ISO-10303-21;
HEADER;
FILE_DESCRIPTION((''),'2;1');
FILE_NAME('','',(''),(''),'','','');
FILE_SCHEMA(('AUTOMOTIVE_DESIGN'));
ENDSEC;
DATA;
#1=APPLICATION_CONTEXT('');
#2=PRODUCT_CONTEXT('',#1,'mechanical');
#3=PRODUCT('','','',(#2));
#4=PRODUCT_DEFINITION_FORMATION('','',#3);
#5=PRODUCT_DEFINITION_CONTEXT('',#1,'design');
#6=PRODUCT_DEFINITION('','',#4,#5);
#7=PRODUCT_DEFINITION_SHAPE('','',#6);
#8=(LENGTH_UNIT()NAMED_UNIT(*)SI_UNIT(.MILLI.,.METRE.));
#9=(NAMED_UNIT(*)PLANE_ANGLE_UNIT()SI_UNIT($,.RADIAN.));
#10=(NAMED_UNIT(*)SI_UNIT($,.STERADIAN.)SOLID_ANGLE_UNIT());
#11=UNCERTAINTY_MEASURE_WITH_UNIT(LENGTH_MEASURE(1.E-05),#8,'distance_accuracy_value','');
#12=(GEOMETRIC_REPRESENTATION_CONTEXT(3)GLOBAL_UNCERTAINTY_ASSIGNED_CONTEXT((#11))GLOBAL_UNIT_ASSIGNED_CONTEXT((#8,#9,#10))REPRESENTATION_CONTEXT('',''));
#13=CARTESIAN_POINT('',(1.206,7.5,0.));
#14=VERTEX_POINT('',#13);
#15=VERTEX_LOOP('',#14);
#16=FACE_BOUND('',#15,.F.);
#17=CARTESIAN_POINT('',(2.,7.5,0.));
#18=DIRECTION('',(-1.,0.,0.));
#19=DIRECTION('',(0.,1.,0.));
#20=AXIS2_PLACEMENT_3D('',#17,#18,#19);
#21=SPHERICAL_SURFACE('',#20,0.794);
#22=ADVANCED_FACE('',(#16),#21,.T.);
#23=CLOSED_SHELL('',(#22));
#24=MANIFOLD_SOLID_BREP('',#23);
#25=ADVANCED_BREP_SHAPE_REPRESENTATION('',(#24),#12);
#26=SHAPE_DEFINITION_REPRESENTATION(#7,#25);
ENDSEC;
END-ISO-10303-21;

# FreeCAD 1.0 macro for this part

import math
import FreeCAD as App
import Part
import Sketcher
from FreeCAD import Vector
Q = App.Units.Quantity

doc = App.newDocument("Part")
body = doc.addObject("PartDesign::Body", "Body")

# Sketch on XY plane
sketch1 = body.newObject("Sketcher::SketchObject", "Sketch")
sketch1.AttachmentSupport = (doc.getObject("XY_Plane"), [""])
sketch1.MapMode = "FlatFace"
sketch1.addGeometry([
    Part.LineSegment(Vector(1.2, 7.5, 0), Vector(2.8, 7.5, 0)),
    Part.ArcOfCircle(Part.Circle(Vector(2, 7.5, 0), Vector(0, 0, 1), 0.8), math.radians(0), math.radians(180)),
], False)
sketch1.addGeometry(Part.LineSegment(Vector(1.2, 7.5, 0), Vector(2.8, 7.5, 0)), True)  # axis
sketch1.addConstraint([
    Sketcher.Constraint("Coincident", 0, 1, 1, 2),
    Sketcher.Constraint("Coincident", 1, 1, 0, 2),
    Sketcher.Constraint("Horizontal", 0),
    Sketcher.Constraint("Horizontal", 2),
    Sketcher.Constraint("Coincident", 2, 1, 0, 1),
    Sketcher.Constraint("Horizontal", 1, 3, 0, 1),
    Sketcher.Constraint("Equal", 0, 2),
    Sketcher.Constraint("DistanceX", -1, 1, 1, 3, Q("2 mm")),
    Sketcher.Constraint("Radius", 1, Q("0.794 mm")),
    Sketcher.Constraint("DistanceY", -1, 1, 1, 3, Q("7.5 mm")),
])
revolution = body.newObject("PartDesign::Revolution", "Revolution")
revolution.Profile = sketch1
revolution.ReferenceAxis = (sketch1, ["Axis0"])
revolution.Angle = 360

doc.recompute()
